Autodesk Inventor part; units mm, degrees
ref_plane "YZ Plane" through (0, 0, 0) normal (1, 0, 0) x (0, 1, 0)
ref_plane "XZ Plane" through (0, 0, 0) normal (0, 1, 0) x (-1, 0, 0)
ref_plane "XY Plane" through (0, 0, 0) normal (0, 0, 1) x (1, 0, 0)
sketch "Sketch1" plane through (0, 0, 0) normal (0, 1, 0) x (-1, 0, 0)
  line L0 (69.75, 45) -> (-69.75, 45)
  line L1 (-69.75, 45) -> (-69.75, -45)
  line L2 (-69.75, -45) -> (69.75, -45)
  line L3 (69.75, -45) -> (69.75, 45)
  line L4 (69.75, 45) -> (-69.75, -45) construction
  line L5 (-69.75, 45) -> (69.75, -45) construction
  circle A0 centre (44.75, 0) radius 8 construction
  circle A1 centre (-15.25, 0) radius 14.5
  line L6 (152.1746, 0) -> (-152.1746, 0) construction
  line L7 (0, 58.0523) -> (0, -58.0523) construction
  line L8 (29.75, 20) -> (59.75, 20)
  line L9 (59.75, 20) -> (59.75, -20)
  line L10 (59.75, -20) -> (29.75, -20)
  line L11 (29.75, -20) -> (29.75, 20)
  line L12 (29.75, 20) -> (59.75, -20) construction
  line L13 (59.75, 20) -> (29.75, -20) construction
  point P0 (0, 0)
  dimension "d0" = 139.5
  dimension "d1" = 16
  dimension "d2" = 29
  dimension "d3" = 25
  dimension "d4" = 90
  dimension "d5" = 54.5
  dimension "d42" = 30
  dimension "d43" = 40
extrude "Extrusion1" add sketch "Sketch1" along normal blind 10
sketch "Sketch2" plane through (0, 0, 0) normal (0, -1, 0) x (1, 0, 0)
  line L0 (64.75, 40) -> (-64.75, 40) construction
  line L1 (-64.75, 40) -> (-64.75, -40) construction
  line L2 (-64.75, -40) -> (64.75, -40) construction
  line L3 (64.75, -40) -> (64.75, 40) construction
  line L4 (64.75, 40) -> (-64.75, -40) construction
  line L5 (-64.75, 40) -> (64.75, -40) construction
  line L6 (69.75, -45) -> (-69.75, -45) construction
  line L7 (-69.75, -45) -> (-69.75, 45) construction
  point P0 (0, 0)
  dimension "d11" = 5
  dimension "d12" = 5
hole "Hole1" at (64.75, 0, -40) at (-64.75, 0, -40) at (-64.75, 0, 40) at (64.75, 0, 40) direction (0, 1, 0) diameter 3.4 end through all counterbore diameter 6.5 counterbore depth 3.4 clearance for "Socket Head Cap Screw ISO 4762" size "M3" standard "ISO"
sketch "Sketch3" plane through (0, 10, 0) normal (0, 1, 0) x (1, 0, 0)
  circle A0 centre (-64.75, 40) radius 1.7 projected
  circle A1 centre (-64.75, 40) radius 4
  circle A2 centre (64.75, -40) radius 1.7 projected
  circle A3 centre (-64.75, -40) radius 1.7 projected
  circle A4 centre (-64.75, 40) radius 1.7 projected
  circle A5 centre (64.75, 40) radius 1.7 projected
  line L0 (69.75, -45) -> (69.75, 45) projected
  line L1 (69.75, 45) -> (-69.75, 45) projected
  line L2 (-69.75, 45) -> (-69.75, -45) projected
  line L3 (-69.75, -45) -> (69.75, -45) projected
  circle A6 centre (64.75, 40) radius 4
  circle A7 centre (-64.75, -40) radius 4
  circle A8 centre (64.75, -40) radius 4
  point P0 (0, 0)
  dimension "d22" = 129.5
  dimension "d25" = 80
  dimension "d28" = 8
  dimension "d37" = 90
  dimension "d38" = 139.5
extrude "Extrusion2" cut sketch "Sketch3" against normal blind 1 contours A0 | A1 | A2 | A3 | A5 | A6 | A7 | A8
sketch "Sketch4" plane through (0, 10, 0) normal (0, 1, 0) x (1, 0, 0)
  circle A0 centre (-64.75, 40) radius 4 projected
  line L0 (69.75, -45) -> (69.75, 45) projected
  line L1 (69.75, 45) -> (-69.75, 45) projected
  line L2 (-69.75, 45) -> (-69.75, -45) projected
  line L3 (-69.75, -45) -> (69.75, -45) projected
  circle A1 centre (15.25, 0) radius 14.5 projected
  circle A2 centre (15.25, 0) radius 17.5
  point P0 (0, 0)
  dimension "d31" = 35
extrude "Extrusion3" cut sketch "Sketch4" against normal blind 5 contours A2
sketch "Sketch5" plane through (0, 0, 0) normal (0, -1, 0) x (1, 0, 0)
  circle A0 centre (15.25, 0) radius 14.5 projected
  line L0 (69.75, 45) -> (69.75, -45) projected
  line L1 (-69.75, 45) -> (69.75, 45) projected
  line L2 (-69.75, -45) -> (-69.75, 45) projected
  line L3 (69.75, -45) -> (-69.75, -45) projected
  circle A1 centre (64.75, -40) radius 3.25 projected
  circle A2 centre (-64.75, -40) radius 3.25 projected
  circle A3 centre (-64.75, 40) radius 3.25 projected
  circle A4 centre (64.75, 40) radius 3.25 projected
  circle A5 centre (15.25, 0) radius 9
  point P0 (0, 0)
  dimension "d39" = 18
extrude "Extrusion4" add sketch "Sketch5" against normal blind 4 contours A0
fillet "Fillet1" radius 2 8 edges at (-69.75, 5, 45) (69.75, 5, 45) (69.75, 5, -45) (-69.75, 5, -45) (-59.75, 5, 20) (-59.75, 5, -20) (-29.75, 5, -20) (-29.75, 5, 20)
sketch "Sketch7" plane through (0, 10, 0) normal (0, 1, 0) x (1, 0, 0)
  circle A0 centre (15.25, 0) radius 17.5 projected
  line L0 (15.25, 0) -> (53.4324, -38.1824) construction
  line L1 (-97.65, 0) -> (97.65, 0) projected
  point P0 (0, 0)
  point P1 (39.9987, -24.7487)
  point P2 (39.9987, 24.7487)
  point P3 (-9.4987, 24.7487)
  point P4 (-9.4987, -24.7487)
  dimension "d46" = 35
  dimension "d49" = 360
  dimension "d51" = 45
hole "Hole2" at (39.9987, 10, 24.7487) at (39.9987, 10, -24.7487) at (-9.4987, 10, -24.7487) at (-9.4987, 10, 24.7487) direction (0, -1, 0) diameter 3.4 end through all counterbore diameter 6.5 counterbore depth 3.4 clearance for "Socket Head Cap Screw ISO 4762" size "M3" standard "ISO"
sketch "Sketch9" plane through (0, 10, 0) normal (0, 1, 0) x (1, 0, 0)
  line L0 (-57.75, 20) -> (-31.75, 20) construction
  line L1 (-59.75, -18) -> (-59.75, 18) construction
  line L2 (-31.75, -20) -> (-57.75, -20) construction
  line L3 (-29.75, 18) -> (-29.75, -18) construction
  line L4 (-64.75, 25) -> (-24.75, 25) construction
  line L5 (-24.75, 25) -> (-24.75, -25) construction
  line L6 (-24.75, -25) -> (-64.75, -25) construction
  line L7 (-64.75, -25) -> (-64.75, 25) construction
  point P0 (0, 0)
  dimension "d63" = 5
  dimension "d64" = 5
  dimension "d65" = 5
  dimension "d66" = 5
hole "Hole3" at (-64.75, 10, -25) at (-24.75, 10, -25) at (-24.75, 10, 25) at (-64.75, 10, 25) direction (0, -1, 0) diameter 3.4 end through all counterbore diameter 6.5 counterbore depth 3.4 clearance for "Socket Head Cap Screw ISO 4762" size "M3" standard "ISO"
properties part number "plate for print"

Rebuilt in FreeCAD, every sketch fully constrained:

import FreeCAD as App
import Part
import Sketcher
from FreeCAD import Vector


def edges_at(feature, points):
    """Names of the edges that pass closest to the given points."""
    edges = feature.Shape.Edges
    near = lambda p: min(range(len(edges)), key=lambda i: edges[i].distToShape(Part.Vertex(*p))[0])
    return sorted({f"Edge{near(p) + 1}" for p in points})

doc = App.newDocument("Part")
body = doc.addObject("PartDesign::Body", "Body")

# Sketch on XZ plane
sketch1 = body.newObject("Sketcher::SketchObject", "Sketch")
sketch1.AttachmentSupport = (doc.getObject("XZ_Plane"), [""])
sketch1.MapMode = "FlatFace"
sketch1.addGeometry(Part.LineSegment(Vector(-70, -45, 0), Vector(-70, 45, 0)), False)
sketch1.addGeometry(Part.LineSegment(Vector(-70, 45, 0), Vector(70, 45, 0)), False)
sketch1.addGeometry(Part.LineSegment(Vector(70, 45, 0), Vector(70, -45, 0)), False)
sketch1.addGeometry(Part.LineSegment(Vector(70, -45, 0), Vector(-70, -45, 0)), False)
sketch1.addGeometry(Part.Circle(Vector(15, 0, 0), Vector(0, 0, 1), 14), False)
sketch1.addGeometry(Part.LineSegment(Vector(-30, -20, 0), Vector(-30, 20, 0)), False)
sketch1.addGeometry(Part.LineSegment(Vector(-30, 20, 0), Vector(-60, 20, 0)), False)
sketch1.addGeometry(Part.LineSegment(Vector(-60, 20, 0), Vector(-60, -20, 0)), False)
sketch1.addGeometry(Part.LineSegment(Vector(-60, -20, 0), Vector(-30, -20, 0)), False)
sketch1.addConstraint(Sketcher.Constraint("Coincident", 0, 2, 1, 1))
sketch1.addConstraint(Sketcher.Constraint("Coincident", 1, 2, 2, 1))
sketch1.addConstraint(Sketcher.Constraint("Coincident", 2, 2, 3, 1))
sketch1.addConstraint(Sketcher.Constraint("Coincident", 3, 2, 0, 1))
sketch1.addConstraint(Sketcher.Constraint("Coincident", 5, 2, 6, 1))
sketch1.addConstraint(Sketcher.Constraint("Coincident", 6, 2, 7, 1))
sketch1.addConstraint(Sketcher.Constraint("Coincident", 7, 2, 8, 1))
sketch1.addConstraint(Sketcher.Constraint("Coincident", 8, 2, 5, 1))
sketch1.addConstraint(Sketcher.Constraint("Vertical", 0))
sketch1.addConstraint(Sketcher.Constraint("Horizontal", 1))
sketch1.addConstraint(Sketcher.Constraint("Vertical", 2))
sketch1.addConstraint(Sketcher.Constraint("Horizontal", 3))
sketch1.addConstraint(Sketcher.Constraint("Vertical", 5))
sketch1.addConstraint(Sketcher.Constraint("Horizontal", 6))
sketch1.addConstraint(Sketcher.Constraint("Vertical", 7))
sketch1.addConstraint(Sketcher.Constraint("Horizontal", 8))
sketch1.addConstraint(Sketcher.Constraint("Symmetric", 0, 2, 2, 2, -1, 1))
sketch1.addConstraint(Sketcher.Constraint("PointOnObject", 4, 3, -1))
sketch1.addConstraint(Sketcher.Constraint("Diameter", 4, 29.0))
sketch1.addConstraint(Sketcher.Constraint("DistanceX", 6, 2, 6, 1, 30.0))
sketch1.addConstraint(Sketcher.Constraint("DistanceY", 0, 1, 0, 2, 90.0))
sketch1.addConstraint(Sketcher.Constraint("DistanceY", 5, 1, 5, 2, 40.0))
sketch1.addConstraint(Sketcher.Constraint("DistanceX", 1, 1, 1, 2, 139.5))
sketch1.addConstraint(Sketcher.Constraint("DistanceX", 0, 2, 5, 2, 40.0))
sketch1.addConstraint(Sketcher.Constraint("DistanceY", 5, 2, 0, 2, 25.0))
sketch1.addConstraint(Sketcher.Constraint("DistanceX", 4, 3, 1, 2, 54.5))
pad1 = body.newObject("PartDesign::Pad", "Pad")
pad1.Profile = sketch1
pad1.Length = 10
pad1.Reversed = True

# Sketch on XZ plane
sketch2 = body.newObject("Sketcher::SketchObject", "Sketch001")
sketch2.AttachmentSupport = (doc.getObject("XZ_Plane"), [""])
sketch2.MapMode = "FlatFace"
sketch2.addGeometry(Part.Circle(Vector(64.8, -40, 0), Vector(0, 0, 1), 1.7), False)
sketch2.addGeometry(Part.Circle(Vector(-64.8, -40, 0), Vector(0, 0, 1), 1.7), False)
sketch2.addGeometry(Part.Circle(Vector(-64.8, 40, 0), Vector(0, 0, 1), 1.7), False)
sketch2.addGeometry(Part.Circle(Vector(64.8, 40, 0), Vector(0, 0, 1), 1.7), False)
sketch2.addConstraint(Sketcher.Constraint("Equal", 0, 1))
sketch2.addConstraint(Sketcher.Constraint("Equal", 1, 2))
sketch2.addConstraint(Sketcher.Constraint("Equal", 2, 3))
sketch2.addConstraint(Sketcher.Constraint("Symmetric", 0, 3, 2, 3, -1, 1))
sketch2.addConstraint(Sketcher.Constraint("Symmetric", 1, 3, 3, 3, -1, 1))
sketch2.addConstraint(Sketcher.Constraint("Symmetric", 0, 3, 1, 3, -2))
sketch2.addConstraint(Sketcher.Constraint("Diameter", 0, 3.4))
sketch2.addConstraint(Sketcher.Constraint("DistanceY", 0, 3, -1, 1, 40.0))
sketch2.addConstraint(Sketcher.Constraint("DistanceX", 1, 3, 0, 3, 129.5))
doc.recompute()
hole = body.newObject("PartDesign::Hole", "Hole")
hole.Profile = sketch2
hole.ThreadType = "None"
hole.Diameter = 3.4
hole.DepthType = "ThroughAll"
hole.HoleCutType = "Counterbore"
hole.HoleCutDiameter = 6.5
hole.HoleCutDepth = 3.4

# Sketch on XZ plane
sketch3 = body.newObject("Sketcher::SketchObject", "Sketch002")
sketch3.AttachmentSupport = (doc.getObject("XZ_Plane"), [""])
sketch3.MapMode = "FlatFace"
sketch3.AttachmentOffset = App.Placement(Vector(0, 0, -10), App.Rotation())
sketch3.addGeometry(Part.Circle(Vector(-64.8, -40, 0), Vector(0, 0, 1), 4), False)
sketch3.addGeometry(Part.Circle(Vector(64.8, 40, 0), Vector(0, 0, 1), 4), False)
sketch3.addGeometry(Part.Circle(Vector(-64.8, 40, 0), Vector(0, 0, 1), 4), False)
sketch3.addGeometry(Part.Circle(Vector(64.8, -40, 0), Vector(0, 0, 1), 4), False)
sketch3.addConstraint(Sketcher.Constraint("Equal", 0, 1))
sketch3.addConstraint(Sketcher.Constraint("Equal", 1, 2))
sketch3.addConstraint(Sketcher.Constraint("Equal", 2, 3))
sketch3.addConstraint(Sketcher.Constraint("Symmetric", 0, 3, 1, 3, -1, 1))
sketch3.addConstraint(Sketcher.Constraint("Symmetric", 2, 3, 3, 3, -1, 1))
sketch3.addConstraint(Sketcher.Constraint("Symmetric", 1, 3, 2, 3, -2))
sketch3.addConstraint(Sketcher.Constraint("Diameter", 0, 8.0))
sketch3.addConstraint(Sketcher.Constraint("DistanceY", 0, 3, 1, 3, 80.0))
sketch3.addConstraint(Sketcher.Constraint("DistanceX", 0, 3, 1, 3, 129.5))
pocket1 = body.newObject("PartDesign::Pocket", "Pocket")
pocket1.Profile = sketch3
pocket1.Length = 1
pocket1.Reversed = True

# Sketch on XZ plane
sketch4 = body.newObject("Sketcher::SketchObject", "Sketch003")
sketch4.AttachmentSupport = (doc.getObject("XZ_Plane"), [""])
sketch4.MapMode = "FlatFace"
sketch4.AttachmentOffset = App.Placement(Vector(0, 0, -10), App.Rotation())
sketch4.addGeometry(Part.Circle(Vector(15, 0, 0), Vector(0, 0, 1), 18), False)
sketch4.addGeometry(Part.Circle(Vector(15, 0, 0), Vector(0, 0, 1), 14), False)
sketch4.addConstraint(Sketcher.Constraint("Coincident", 1, 3, 0, 3))
sketch4.addConstraint(Sketcher.Constraint("PointOnObject", 0, 3, -1))
sketch4.addConstraint(Sketcher.Constraint("Diameter", 0, 35.0))
sketch4.addConstraint(Sketcher.Constraint("Diameter", 1, 29.0))
sketch4.addConstraint(Sketcher.Constraint("DistanceX", -1, 1, 0, 3, 15.25))
pocket2 = body.newObject("PartDesign::Pocket", "Pocket001")
pocket2.Profile = sketch4
pocket2.Length = 5
pocket2.Reversed = True

# Sketch on XZ plane
sketch5 = body.newObject("Sketcher::SketchObject", "Sketch004")
sketch5.AttachmentSupport = (doc.getObject("XZ_Plane"), [""])
sketch5.MapMode = "FlatFace"
sketch5.addGeometry(Part.Circle(Vector(15, 0, 0), Vector(0, 0, 1), 14), False)
sketch5.addGeometry(Part.Circle(Vector(15, 0, 0), Vector(0, 0, 1), 9), False)
sketch5.addConstraint(Sketcher.Constraint("Coincident", 1, 3, 0, 3))
sketch5.addConstraint(Sketcher.Constraint("PointOnObject", 0, 3, -1))
sketch5.addConstraint(Sketcher.Constraint("Diameter", 1, 18.0))
sketch5.addConstraint(Sketcher.Constraint("Diameter", 0, 29.0))
sketch5.addConstraint(Sketcher.Constraint("DistanceX", -1, 1, 0, 3, 15.25))
pad2 = body.newObject("PartDesign::Pad", "Pad001")
pad2.Profile = sketch5
pad2.Length = 4
pad2.Reversed = True
doc.recompute()

fillet = body.newObject("PartDesign::Fillet", "Fillet")
fillet.Base = (pad2, edges_at(pad2, [
    (-69.75, 5, 45),
    (69.75, 5, 45),
    (69.75, 5, -45),
    (-69.75, 5, -45),
    (-59.75, 5, 20),
    (-59.75, 5, -20),
    (-29.75, 5, -20),
    (-29.75, 5, 20),
]))
fillet.Radius = 2

# Sketch on XZ plane
sketch6 = body.newObject("Sketcher::SketchObject", "Sketch005")
sketch6.AttachmentSupport = (doc.getObject("XZ_Plane"), [""])
sketch6.MapMode = "FlatFace"
sketch6.AttachmentOffset = App.Placement(Vector(0, 0, -10), App.Rotation())
sketch6.addGeometry(Part.Circle(Vector(40, 24.7, 0), Vector(0, 0, 1), 1.7), False)
sketch6.addGeometry(Part.Circle(Vector(40, -24.7, 0), Vector(0, 0, 1), 1.7), False)
sketch6.addGeometry(Part.Circle(Vector(-9.5, -24.7, 0), Vector(0, 0, 1), 1.7), False)
sketch6.addGeometry(Part.Circle(Vector(-9.5, 24.7, 0), Vector(0, 0, 1), 1.7), False)
sketch6.addConstraint(Sketcher.Constraint("Equal", 0, 1))
sketch6.addConstraint(Sketcher.Constraint("Equal", 1, 2))
sketch6.addConstraint(Sketcher.Constraint("Equal", 2, 3))
sketch6.addConstraint(Sketcher.Constraint("Symmetric", 0, 3, 1, 3, -1))
sketch6.addConstraint(Sketcher.Constraint("Symmetric", 2, 3, 3, 3, -1))
sketch6.addConstraint(Sketcher.Constraint("Horizontal", 1, 3, 2, 3))
sketch6.addConstraint(Sketcher.Constraint("Diameter", 0, 3.4))
sketch6.addConstraint(Sketcher.Constraint("DistanceX", -1, 1, 0, 3, 39.9987))
sketch6.addConstraint(Sketcher.Constraint("DistanceY", -1, 1, 0, 3, 24.7487))
sketch6.addConstraint(Sketcher.Constraint("DistanceX", 2, 3, -1, 1, 9.4987))
doc.recompute()
hole2 = body.newObject("PartDesign::Hole", "Hole001")
hole2.Profile = sketch6
hole2.ThreadType = "None"
hole2.Diameter = 3.4
hole2.DepthType = "ThroughAll"
hole2.HoleCutType = "Counterbore"
hole2.HoleCutDiameter = 6.5
hole2.HoleCutDepth = 3.4
hole2.Reversed = True

# Sketch on XZ plane
sketch7 = body.newObject("Sketcher::SketchObject", "Sketch006")
sketch7.AttachmentSupport = (doc.getObject("XZ_Plane"), [""])
sketch7.MapMode = "FlatFace"
sketch7.AttachmentOffset = App.Placement(Vector(0, 0, -10), App.Rotation())
sketch7.addGeometry(Part.Circle(Vector(-64.8, -25, 0), Vector(0, 0, 1), 1.7), False)
sketch7.addGeometry(Part.Circle(Vector(-24.8, -25, 0), Vector(0, 0, 1), 1.7), False)
sketch7.addGeometry(Part.Circle(Vector(-24.8, 25, 0), Vector(0, 0, 1), 1.7), False)
sketch7.addGeometry(Part.Circle(Vector(-64.8, 25, 0), Vector(0, 0, 1), 1.7), False)
sketch7.addConstraint(Sketcher.Constraint("Equal", 0, 1))
sketch7.addConstraint(Sketcher.Constraint("Equal", 1, 2))
sketch7.addConstraint(Sketcher.Constraint("Equal", 2, 3))
sketch7.addConstraint(Sketcher.Constraint("Symmetric", 1, 3, 2, 3, -1))
sketch7.addConstraint(Sketcher.Constraint("Symmetric", 0, 3, 3, 3, -1))
sketch7.addConstraint(Sketcher.Constraint("Horizontal", 0, 3, 1, 3))
sketch7.addConstraint(Sketcher.Constraint("Diameter", 0, 3.4))
sketch7.addConstraint(Sketcher.Constraint("DistanceY", 0, 3, -1, 1, 25.0))
sketch7.addConstraint(Sketcher.Constraint("DistanceX", 0, 3, 1, 3, 40.0))
sketch7.addConstraint(Sketcher.Constraint("DistanceX", 0, 3, -1, 1, 64.75))
doc.recompute()
hole3 = body.newObject("PartDesign::Hole", "Hole002")
hole3.Profile = sketch7
hole3.ThreadType = "None"
hole3.Diameter = 3.4
hole3.DepthType = "ThroughAll"
hole3.HoleCutType = "Counterbore"
hole3.HoleCutDiameter = 6.5
hole3.HoleCutDepth = 3.4
hole3.Reversed = True

doc.recompute()
